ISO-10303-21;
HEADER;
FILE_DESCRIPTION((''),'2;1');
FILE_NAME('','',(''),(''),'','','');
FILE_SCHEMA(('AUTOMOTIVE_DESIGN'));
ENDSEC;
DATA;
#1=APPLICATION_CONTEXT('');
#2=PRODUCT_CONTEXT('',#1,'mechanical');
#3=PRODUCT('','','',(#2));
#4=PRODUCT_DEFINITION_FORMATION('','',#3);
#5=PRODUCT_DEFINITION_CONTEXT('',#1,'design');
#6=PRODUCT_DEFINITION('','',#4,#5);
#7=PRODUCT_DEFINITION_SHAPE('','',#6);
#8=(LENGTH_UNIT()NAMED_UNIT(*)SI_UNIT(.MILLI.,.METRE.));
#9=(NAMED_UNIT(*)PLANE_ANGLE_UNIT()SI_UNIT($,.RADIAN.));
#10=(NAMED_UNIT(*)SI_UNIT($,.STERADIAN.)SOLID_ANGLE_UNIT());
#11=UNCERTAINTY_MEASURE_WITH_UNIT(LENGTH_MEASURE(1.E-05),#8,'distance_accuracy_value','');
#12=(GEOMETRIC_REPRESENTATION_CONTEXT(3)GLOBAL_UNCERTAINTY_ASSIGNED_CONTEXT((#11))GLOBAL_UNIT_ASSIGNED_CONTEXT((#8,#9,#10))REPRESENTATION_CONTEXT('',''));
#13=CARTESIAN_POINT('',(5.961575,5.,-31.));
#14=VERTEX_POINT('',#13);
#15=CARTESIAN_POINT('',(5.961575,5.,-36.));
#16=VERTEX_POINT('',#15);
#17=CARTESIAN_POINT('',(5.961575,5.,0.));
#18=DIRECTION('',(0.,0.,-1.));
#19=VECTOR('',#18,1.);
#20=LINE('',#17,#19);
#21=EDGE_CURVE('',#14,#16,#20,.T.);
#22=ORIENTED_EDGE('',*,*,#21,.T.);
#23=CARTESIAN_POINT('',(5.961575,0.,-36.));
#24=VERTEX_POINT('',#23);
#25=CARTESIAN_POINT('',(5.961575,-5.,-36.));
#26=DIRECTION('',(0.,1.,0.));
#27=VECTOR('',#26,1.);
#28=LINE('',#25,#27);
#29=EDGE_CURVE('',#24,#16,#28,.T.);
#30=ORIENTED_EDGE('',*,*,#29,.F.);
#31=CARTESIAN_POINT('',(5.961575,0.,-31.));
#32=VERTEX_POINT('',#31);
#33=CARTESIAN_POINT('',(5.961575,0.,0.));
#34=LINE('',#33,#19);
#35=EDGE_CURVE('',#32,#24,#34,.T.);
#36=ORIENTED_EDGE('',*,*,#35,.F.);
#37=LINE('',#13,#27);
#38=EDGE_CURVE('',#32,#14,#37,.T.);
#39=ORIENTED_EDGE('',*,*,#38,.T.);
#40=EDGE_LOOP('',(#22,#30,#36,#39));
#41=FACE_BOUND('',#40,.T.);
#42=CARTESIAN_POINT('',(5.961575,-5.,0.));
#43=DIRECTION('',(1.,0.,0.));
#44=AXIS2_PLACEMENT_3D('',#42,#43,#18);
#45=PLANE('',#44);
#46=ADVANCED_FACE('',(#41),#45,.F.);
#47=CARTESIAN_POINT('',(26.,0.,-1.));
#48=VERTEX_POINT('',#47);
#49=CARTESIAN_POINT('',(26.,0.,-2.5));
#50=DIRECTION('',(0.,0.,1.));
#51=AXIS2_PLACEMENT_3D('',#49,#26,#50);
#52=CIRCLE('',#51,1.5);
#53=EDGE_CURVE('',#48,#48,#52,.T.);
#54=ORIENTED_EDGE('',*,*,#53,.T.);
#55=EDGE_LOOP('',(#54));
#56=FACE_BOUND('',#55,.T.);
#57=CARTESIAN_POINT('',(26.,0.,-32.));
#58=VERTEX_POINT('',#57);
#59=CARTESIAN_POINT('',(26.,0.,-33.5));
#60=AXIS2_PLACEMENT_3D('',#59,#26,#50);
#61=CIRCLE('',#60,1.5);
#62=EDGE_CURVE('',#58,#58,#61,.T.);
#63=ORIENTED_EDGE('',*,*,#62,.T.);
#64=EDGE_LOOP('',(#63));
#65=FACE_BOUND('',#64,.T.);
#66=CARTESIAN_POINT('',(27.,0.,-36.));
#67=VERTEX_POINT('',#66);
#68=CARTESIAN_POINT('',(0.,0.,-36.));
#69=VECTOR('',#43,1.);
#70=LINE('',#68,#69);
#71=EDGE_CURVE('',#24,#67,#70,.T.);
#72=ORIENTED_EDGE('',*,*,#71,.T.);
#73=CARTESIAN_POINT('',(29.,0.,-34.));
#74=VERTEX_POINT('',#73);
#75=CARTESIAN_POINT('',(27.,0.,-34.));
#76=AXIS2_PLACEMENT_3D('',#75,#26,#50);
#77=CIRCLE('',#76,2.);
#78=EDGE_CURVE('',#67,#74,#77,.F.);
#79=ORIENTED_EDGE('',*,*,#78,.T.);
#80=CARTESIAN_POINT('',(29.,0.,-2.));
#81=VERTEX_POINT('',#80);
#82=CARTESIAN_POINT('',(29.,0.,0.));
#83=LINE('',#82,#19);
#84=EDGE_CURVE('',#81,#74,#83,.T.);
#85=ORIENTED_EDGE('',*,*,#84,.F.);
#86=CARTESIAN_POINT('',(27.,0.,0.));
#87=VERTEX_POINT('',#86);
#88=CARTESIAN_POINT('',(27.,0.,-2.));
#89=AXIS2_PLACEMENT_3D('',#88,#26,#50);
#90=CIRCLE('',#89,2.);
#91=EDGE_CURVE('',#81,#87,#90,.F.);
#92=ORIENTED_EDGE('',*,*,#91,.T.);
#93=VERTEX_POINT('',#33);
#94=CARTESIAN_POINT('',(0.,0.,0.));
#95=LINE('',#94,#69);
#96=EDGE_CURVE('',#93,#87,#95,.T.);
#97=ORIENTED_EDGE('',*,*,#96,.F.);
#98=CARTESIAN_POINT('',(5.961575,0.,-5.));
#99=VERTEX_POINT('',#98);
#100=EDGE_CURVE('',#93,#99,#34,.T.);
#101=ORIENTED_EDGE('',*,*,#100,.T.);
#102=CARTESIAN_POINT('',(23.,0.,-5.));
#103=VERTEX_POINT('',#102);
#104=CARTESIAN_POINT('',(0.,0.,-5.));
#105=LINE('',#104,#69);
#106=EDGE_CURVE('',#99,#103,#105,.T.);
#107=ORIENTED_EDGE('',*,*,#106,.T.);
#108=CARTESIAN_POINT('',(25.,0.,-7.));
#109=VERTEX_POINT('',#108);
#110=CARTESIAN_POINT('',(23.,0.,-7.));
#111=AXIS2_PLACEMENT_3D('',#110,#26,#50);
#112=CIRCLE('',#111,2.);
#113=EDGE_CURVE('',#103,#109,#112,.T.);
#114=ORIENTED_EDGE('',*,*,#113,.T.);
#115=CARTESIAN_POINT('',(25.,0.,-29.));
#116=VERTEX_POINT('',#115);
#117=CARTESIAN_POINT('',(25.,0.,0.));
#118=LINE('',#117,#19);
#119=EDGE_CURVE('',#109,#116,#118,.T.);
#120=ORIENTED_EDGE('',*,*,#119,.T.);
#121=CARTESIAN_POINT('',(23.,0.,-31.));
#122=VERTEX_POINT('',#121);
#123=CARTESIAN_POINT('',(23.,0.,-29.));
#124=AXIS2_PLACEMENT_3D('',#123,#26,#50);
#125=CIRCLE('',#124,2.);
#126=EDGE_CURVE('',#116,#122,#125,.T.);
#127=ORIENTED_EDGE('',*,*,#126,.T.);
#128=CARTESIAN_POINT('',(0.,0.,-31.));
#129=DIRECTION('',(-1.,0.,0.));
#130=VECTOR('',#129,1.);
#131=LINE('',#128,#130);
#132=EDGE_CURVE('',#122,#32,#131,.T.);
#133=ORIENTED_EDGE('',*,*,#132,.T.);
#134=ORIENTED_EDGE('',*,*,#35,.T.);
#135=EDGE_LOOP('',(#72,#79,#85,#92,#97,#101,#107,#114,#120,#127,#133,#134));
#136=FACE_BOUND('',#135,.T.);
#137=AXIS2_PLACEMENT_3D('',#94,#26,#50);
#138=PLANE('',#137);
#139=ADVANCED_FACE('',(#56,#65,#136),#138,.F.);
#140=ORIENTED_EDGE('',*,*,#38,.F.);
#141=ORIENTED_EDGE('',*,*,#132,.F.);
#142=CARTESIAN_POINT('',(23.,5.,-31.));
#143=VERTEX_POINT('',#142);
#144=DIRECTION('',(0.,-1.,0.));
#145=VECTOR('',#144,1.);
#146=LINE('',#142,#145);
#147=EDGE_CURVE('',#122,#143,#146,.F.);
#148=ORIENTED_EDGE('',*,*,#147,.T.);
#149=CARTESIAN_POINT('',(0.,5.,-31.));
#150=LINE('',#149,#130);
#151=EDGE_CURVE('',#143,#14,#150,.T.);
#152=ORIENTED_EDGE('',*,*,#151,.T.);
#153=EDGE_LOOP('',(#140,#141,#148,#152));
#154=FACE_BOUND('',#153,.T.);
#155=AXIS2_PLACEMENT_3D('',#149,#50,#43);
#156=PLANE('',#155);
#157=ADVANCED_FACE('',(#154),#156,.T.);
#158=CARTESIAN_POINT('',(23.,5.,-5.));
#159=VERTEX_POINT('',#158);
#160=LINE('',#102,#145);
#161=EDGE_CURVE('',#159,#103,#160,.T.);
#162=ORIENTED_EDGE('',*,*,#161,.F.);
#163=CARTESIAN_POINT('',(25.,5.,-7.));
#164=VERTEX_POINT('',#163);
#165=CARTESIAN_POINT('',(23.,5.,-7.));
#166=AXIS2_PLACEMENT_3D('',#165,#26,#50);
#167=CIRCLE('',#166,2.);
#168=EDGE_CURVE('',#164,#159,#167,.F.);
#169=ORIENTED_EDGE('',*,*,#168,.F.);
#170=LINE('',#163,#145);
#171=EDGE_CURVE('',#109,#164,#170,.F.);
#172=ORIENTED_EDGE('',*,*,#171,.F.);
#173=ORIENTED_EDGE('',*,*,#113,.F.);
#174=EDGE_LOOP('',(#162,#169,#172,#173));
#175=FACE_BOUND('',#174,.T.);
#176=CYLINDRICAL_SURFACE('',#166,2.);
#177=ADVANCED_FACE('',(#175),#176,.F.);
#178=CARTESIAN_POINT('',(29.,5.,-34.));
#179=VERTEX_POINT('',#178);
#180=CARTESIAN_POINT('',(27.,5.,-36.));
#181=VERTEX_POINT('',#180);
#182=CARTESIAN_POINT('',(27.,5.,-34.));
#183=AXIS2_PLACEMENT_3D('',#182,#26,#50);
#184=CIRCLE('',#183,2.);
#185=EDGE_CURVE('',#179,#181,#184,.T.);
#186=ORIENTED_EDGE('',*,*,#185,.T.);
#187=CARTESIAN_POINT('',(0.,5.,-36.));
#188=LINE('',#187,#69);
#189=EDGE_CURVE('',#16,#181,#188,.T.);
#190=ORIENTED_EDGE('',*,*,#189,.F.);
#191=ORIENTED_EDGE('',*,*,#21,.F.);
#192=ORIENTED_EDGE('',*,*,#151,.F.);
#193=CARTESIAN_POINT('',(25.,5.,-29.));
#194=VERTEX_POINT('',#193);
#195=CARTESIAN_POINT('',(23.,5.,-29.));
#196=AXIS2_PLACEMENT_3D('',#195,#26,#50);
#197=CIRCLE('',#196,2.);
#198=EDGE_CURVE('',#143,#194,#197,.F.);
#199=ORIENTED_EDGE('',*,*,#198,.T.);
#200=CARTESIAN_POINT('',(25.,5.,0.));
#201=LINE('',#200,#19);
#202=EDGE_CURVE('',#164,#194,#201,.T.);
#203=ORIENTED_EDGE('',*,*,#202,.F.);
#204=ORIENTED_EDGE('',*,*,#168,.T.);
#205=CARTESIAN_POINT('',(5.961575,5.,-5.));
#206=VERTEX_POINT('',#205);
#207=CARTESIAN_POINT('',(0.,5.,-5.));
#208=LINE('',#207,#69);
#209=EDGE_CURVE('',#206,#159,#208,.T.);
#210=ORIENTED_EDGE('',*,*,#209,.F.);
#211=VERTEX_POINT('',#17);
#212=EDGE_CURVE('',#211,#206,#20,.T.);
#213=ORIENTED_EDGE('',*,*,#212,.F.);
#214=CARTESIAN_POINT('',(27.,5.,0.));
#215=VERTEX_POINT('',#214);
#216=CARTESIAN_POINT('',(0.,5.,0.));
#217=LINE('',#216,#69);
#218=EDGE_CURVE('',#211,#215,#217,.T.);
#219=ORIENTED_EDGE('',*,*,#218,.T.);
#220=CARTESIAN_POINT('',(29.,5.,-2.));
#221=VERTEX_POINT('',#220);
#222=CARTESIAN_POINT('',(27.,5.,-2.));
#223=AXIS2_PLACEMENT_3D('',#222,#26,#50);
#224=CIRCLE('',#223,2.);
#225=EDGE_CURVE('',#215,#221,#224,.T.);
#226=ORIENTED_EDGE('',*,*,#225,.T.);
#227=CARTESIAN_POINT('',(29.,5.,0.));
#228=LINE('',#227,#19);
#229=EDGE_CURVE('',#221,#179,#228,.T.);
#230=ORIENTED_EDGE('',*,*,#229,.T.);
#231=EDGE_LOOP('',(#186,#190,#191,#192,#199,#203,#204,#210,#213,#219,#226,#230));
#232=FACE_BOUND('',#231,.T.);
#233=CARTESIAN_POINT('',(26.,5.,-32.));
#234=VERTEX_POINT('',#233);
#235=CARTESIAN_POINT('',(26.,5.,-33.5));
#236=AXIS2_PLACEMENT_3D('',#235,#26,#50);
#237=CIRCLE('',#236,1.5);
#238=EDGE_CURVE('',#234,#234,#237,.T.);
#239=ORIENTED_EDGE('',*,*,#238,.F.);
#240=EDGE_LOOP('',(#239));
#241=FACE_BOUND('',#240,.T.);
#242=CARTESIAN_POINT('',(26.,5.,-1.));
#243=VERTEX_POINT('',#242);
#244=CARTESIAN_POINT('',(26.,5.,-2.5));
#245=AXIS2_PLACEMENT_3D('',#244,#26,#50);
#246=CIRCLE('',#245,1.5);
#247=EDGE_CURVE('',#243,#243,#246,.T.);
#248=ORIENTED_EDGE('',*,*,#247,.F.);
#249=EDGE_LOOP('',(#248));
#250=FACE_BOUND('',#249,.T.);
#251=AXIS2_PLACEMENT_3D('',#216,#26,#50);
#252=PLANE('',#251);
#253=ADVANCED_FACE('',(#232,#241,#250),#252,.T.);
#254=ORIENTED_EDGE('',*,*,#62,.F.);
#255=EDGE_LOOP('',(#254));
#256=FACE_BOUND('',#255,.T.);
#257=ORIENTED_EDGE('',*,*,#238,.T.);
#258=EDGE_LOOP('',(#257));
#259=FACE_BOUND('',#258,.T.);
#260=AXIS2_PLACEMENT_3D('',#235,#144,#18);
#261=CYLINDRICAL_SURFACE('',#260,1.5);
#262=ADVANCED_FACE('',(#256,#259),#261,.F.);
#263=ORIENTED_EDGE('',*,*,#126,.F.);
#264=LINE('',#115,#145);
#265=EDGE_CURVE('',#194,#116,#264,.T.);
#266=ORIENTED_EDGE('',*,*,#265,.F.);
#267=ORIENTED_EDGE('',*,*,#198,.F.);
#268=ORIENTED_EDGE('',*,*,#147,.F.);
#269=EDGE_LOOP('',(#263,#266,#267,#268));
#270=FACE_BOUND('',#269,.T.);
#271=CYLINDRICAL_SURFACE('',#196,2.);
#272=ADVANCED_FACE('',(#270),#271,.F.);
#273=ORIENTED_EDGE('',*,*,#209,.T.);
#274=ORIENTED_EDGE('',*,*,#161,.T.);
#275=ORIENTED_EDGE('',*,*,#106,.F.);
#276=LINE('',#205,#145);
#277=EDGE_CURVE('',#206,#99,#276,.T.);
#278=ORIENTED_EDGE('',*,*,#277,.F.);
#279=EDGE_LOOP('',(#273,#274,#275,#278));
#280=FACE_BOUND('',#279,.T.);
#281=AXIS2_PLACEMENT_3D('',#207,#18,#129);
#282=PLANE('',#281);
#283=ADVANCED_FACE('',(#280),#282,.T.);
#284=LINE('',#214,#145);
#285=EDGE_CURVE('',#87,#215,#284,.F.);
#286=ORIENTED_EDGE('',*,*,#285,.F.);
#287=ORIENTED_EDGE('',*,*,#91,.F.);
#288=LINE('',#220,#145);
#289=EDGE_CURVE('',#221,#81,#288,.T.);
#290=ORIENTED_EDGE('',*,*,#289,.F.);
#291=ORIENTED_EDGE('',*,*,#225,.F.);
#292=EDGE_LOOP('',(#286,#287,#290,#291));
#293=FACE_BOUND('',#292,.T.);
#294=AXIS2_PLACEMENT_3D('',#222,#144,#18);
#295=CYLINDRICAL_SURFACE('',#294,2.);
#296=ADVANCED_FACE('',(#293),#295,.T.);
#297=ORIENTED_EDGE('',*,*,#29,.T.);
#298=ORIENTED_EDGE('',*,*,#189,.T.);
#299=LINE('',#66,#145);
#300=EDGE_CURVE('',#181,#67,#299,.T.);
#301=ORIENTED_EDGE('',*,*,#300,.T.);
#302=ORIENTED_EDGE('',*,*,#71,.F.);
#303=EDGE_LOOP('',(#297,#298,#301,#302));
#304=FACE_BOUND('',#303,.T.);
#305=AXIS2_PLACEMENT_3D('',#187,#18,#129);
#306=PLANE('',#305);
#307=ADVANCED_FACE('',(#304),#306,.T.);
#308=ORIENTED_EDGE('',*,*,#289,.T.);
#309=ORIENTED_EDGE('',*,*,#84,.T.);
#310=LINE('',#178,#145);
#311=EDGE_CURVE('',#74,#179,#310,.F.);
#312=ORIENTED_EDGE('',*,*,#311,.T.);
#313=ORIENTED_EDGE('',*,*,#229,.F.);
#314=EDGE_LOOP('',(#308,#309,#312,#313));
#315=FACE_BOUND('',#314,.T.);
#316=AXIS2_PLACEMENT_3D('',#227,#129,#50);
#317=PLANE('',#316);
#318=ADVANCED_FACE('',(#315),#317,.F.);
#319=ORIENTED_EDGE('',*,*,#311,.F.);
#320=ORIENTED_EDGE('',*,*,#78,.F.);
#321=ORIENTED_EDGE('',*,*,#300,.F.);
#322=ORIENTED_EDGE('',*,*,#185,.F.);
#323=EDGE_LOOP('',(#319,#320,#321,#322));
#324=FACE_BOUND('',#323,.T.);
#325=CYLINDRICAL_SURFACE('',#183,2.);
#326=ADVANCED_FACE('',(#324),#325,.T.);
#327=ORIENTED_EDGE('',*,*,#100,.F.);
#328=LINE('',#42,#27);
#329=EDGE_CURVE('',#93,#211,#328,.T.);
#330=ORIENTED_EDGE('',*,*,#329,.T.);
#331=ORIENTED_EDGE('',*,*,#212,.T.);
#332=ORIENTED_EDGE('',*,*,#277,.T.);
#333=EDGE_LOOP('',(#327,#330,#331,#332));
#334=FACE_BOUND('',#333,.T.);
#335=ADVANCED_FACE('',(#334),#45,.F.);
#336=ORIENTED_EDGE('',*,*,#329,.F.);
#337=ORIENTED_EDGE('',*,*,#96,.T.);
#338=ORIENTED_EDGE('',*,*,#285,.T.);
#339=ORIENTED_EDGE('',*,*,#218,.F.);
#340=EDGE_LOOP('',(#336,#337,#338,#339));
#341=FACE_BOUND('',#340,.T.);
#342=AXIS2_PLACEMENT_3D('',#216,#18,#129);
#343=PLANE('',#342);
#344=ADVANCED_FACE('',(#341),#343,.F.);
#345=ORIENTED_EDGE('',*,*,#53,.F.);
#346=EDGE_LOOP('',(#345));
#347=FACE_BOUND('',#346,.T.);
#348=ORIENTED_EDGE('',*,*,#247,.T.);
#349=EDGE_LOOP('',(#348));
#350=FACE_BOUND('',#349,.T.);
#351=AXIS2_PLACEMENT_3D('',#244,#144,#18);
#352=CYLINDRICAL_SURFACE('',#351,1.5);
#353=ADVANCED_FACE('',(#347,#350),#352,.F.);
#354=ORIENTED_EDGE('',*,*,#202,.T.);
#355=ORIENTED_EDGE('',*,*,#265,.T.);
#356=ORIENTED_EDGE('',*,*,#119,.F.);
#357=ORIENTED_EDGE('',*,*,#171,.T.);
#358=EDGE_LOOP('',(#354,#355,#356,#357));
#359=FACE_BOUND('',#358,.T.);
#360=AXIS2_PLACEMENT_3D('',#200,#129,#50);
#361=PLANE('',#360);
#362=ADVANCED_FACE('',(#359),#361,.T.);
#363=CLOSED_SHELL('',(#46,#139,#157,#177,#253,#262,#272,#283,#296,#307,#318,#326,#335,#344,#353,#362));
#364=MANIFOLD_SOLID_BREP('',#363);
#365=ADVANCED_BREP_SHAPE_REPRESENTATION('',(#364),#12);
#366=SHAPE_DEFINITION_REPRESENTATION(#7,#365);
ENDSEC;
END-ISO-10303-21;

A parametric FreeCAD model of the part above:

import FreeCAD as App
import Part
import Sketcher

V = App.Vector


def edges_at(feature, points):
    """Names of the edges that pass closest to the given points."""
    edges = feature.Shape.Edges
    near = lambda p: min(range(len(edges)), key=lambda i: edges[i].distToShape(Part.Vertex(*p))[0])
    return sorted({f"Edge{near(p) + 1}" for p in points})


def add_polygon(sketch, points):
    """Adds a closed chain of lines whose ends are joined by coincident constraints."""
    first, n = sketch.GeometryCount, len(points)
    for a, b in zip(points, points[1:] + points[:1]):
        sketch.addGeometry(Part.LineSegment(App.Vector(*a, 0), App.Vector(*b, 0)), False)
    for i in range(n):
        sketch.addConstraint(Sketcher.Constraint("Coincident", first + i, 2, first + (i + 1) % n, 1))

doc = App.newDocument("Part")
body = doc.addObject("PartDesign::Body", "Body")

sketch1 = doc.addObject("Sketcher::SketchObject", "Sketch")
body.addObject(sketch1)
sketch1.AttachmentSupport = (doc.XZ_Plane, [""])
sketch1.MapMode = "FlatFace"
add_polygon(sketch1, [(0, -36), (0, -31), (25, -31), (25, -5), (0, -5), (0, 0), (29, 0), (29, -36)])
sketch1.addGeometry(Part.Circle(V(26, -2.5, 0), V(0, 0, 1), 1.5), False)
sketch1.addGeometry(Part.Circle(V(3, -2.5, 0), V(0, 0, 1), 1.5), False)
sketch1.addGeometry(Part.Circle(V(26, -33.5, 0), V(0, 0, 1), 1.5), False)
sketch1.addGeometry(Part.Circle(V(3, -33.5, 0), V(0, 0, 1), 1.5), False)
sketch1.addConstraint([
    Sketcher.Constraint("Vertical", 0),
    Sketcher.Constraint("Horizontal", 1),
    Sketcher.Constraint("Vertical", 2),
    Sketcher.Constraint("Horizontal", 3),
    Sketcher.Constraint("Vertical", 4),
    Sketcher.Constraint("Horizontal", 5),
    Sketcher.Constraint("Vertical", 6),
    Sketcher.Constraint("Horizontal", 7),
    Sketcher.Constraint("Coincident", 4, 2, -1, 1),
    Sketcher.Constraint("Equal", 8, 9),
    Sketcher.Constraint("Equal", 9, 10),
    Sketcher.Constraint("Equal", 10, 11),
    Sketcher.Constraint("PointOnObject", 0, 2, -2),
    Sketcher.Constraint("Horizontal", 8, 3, 9, 3),
    Sketcher.Constraint("Horizontal", 10, 3, 11, 3),
    Sketcher.Constraint("Vertical", 8, 3, 10, 3),
    Sketcher.Constraint("Vertical", 9, 3, 11, 3),
    Sketcher.Constraint("Equal", 0, 4),
    Sketcher.Constraint("Diameter", 8, 3.0),
    Sketcher.Constraint("DistanceX", 1, 1, 1, 2, 25.0),
    Sketcher.Constraint("DistanceX", 5, 1, 5, 2, 29.0),
    Sketcher.Constraint("DistanceY", 0, 1, 0, 2, 5.0),
    Sketcher.Constraint("DistanceY", 2, 1, 2, 2, 26.0),
    Sketcher.Constraint("DistanceX", -1, 1, 8, 3, 26.0),
    Sketcher.Constraint("DistanceX", -1, 1, 9, 3, 3.0),
    Sketcher.Constraint("DistanceY", 10, 3, 8, 3, 31.0),
    Sketcher.Constraint("DistanceY", 8, 3, -1, 1, 2.5),
])
pad1 = doc.addObject("PartDesign::Pad", "Pad")
body.addObject(pad1)
pad1.Profile = sketch1
pad1.Length = 5
pad1.Reversed = True
doc.recompute()

fillet = doc.addObject("PartDesign::Fillet", "Fillet")
body.addObject(fillet)
fillet.Base = (pad1, edges_at(pad1, [
    (0, 2.5, -36),
    (29, 2.5, -36),
    (29, 2.5, 0),
    (0, 2.5, 0),
    (0, 2.5, -5),
    (25, 2.5, -5),
    (25, 2.5, -31),
    (0, 2.5, -31),
]))
fillet.Radius = 2

sketch2 = doc.addObject("Sketcher::SketchObject", "Sketch001")
body.addObject(sketch2)
sketch2.AttachmentSupport = (doc.XZ_Plane, [""])
sketch2.MapMode = "FlatFace"
sketch2.AttachmentOffset = App.Placement(V(0, 0, -5), App.Rotation())
add_polygon(sketch2, [(-1, -36), (-1, 0), (6, 0), (6, -36)])
sketch2.addConstraint([
    Sketcher.Constraint("Vertical", 0),
    Sketcher.Constraint("Horizontal", 1),
    Sketcher.Constraint("Vertical", 2),
    Sketcher.Constraint("Horizontal", 3),
    Sketcher.Constraint("PointOnObject", 0, 2, -1),
    Sketcher.Constraint("DistanceY", 0, 1, 0, 2, 36.0),
    Sketcher.Constraint("DistanceX", 1, 1, 1, 2, 7.277083),
    Sketcher.Constraint("DistanceX", 0, 2, -1, 1, 1.315508),
])
pocket1 = doc.addObject("PartDesign::Pocket", "Pocket")
body.addObject(pocket1)
pocket1.Profile = sketch2
pocket1.Length = 10
pocket1.Reversed = True

doc.recompute()
